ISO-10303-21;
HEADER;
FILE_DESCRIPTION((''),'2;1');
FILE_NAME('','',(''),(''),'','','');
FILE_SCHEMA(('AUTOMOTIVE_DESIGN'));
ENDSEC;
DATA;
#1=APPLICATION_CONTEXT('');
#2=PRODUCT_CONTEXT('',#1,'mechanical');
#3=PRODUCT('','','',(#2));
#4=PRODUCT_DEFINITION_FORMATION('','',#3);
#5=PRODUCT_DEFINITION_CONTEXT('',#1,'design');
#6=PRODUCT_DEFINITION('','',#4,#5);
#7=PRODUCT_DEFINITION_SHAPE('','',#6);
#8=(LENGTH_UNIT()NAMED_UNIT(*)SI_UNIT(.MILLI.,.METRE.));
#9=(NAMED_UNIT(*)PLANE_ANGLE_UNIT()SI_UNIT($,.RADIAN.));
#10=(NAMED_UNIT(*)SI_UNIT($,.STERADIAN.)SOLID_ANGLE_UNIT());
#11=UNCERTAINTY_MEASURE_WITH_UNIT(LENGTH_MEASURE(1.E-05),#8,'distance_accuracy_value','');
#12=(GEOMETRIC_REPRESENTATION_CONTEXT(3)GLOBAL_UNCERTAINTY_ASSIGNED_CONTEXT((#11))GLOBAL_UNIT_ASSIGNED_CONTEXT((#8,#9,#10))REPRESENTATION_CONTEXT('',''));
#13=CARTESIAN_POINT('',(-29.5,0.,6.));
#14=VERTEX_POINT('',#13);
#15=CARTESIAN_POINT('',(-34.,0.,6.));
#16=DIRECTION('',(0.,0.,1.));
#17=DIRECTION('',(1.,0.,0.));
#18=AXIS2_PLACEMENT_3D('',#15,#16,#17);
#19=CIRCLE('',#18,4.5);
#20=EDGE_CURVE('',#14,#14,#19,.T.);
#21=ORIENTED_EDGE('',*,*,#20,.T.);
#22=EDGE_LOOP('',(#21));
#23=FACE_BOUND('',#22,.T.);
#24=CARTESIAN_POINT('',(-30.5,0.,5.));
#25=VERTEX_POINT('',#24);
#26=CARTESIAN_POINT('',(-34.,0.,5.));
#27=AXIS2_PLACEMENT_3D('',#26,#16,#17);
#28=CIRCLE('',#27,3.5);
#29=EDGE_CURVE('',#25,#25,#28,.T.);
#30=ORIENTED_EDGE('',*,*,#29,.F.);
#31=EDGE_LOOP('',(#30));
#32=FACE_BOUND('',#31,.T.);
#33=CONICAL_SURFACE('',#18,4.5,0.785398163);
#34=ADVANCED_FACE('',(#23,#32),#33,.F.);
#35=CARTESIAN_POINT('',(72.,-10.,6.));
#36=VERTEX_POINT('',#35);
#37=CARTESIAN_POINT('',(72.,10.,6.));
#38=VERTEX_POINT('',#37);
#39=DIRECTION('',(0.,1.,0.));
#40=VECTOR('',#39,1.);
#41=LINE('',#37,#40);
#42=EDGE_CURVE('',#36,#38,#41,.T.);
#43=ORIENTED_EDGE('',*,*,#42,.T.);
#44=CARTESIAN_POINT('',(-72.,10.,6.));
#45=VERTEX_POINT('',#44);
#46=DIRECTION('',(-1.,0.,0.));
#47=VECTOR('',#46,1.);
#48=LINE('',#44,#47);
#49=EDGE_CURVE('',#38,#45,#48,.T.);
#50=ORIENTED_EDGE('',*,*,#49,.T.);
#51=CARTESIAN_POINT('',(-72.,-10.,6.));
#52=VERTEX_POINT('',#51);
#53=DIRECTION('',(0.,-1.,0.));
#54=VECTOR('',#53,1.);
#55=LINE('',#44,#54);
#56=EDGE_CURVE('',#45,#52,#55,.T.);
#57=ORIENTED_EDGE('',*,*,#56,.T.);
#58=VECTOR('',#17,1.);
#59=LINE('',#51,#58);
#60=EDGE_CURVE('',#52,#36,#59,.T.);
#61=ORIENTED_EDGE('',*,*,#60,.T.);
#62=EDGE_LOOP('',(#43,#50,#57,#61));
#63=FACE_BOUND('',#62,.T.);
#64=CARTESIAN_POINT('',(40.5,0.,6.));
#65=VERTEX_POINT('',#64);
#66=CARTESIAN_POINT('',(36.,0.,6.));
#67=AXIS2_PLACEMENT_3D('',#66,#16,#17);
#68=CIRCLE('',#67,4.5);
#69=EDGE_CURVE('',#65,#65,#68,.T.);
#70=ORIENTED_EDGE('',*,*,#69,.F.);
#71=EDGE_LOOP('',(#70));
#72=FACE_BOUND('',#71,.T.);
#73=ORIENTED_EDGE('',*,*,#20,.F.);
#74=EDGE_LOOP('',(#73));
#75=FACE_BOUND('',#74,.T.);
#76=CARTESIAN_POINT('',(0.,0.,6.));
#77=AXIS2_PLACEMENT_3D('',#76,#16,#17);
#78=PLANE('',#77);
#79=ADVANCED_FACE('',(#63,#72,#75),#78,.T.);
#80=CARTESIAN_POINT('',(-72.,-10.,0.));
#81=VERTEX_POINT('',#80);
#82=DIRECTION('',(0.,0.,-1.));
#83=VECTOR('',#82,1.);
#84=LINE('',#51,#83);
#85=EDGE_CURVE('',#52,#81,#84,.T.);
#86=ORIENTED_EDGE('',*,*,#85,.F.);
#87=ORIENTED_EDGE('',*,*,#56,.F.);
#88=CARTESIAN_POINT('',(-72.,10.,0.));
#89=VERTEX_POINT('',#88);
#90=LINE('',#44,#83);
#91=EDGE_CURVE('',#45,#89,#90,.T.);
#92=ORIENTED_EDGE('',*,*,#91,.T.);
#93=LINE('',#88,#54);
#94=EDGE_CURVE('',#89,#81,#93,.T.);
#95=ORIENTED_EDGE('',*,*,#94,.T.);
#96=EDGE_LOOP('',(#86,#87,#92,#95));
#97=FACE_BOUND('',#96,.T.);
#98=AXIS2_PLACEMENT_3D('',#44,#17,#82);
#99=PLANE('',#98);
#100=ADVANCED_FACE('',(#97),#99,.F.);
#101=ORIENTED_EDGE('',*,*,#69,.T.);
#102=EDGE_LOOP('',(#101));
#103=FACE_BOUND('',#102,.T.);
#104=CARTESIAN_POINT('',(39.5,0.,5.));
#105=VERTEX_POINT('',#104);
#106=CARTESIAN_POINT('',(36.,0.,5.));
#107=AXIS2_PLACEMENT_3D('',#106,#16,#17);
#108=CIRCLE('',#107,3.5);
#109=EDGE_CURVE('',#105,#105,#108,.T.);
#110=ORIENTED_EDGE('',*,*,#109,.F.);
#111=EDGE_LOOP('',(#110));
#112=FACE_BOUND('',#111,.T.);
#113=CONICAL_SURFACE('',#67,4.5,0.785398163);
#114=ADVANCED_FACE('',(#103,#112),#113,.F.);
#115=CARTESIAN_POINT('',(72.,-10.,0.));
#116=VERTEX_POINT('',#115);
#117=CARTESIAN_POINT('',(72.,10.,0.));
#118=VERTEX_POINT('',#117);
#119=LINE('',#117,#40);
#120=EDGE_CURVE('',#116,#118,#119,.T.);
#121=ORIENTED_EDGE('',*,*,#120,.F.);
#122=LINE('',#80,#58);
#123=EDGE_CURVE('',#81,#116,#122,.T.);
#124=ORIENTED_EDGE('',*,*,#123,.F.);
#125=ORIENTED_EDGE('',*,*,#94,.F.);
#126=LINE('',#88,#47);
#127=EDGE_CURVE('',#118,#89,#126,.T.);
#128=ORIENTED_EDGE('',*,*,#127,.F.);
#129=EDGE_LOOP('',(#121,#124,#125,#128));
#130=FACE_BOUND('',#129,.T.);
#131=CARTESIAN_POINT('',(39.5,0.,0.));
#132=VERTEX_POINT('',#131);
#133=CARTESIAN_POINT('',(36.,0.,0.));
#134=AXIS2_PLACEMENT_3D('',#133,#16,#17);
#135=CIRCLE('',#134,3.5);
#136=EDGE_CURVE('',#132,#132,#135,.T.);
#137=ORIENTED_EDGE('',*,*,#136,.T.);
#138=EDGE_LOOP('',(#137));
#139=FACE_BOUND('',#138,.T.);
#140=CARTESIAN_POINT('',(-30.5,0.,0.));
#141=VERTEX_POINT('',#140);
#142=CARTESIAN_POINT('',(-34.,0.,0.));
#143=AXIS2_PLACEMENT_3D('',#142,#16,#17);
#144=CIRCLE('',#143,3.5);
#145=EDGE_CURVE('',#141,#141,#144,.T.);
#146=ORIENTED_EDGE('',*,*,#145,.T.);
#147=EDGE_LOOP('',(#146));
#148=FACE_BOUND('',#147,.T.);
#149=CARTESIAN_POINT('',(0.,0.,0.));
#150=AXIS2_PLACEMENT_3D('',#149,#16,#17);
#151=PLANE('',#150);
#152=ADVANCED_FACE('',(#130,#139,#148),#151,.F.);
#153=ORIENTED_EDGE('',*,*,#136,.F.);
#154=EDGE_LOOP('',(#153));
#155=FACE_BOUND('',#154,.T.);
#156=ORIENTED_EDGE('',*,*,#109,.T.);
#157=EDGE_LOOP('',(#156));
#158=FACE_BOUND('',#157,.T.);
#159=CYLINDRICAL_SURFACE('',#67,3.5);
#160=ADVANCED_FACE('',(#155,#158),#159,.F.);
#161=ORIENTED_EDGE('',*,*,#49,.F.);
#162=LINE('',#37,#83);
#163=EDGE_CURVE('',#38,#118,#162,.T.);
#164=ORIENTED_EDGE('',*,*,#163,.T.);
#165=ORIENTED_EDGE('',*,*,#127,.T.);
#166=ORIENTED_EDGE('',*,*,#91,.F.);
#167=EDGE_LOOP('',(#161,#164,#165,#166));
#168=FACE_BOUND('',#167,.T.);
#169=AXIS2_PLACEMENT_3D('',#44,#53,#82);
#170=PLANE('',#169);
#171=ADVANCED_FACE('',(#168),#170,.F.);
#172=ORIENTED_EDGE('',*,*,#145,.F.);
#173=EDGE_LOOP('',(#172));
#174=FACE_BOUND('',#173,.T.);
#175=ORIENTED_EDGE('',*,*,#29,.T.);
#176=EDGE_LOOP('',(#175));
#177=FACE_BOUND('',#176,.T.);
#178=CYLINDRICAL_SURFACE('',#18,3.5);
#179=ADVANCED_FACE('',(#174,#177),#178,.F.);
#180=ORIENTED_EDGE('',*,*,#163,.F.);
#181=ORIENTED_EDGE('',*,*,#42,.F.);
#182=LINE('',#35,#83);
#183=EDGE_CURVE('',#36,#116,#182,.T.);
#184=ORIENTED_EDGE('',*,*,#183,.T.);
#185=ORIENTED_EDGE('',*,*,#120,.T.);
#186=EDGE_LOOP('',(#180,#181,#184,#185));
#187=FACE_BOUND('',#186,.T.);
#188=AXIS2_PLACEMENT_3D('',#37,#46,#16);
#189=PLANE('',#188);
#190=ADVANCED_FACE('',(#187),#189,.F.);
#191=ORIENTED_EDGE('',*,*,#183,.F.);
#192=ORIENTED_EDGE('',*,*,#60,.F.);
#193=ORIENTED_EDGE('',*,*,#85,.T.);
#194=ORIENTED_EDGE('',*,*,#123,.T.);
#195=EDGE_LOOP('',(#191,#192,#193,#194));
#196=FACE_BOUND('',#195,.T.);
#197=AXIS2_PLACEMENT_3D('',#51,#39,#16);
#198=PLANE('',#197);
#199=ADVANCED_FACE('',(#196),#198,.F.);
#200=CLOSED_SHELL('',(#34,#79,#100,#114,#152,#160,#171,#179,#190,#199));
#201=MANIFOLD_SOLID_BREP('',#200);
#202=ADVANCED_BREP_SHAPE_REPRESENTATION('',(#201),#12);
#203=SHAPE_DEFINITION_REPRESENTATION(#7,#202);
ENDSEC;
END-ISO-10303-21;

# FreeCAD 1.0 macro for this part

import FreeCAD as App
import Part
import Sketcher
from FreeCAD import Vector
Q = App.Units.Quantity


def add_polygon(sketch, points):
    """Adds a closed chain of lines whose ends are joined by coincident constraints."""
    first, n = sketch.GeometryCount, len(points)
    for a, b in zip(points, points[1:] + points[:1]):
        sketch.addGeometry(Part.LineSegment(App.Vector(*a, 0), App.Vector(*b, 0)), False)
    for i in range(n):
        sketch.addConstraint(Sketcher.Constraint("Coincident", first + i, 2, first + (i + 1) % n, 1))

doc = App.newDocument("Part")
body = doc.addObject("PartDesign::Body", "Body")

# Sketch on XY plane
sketch1 = body.newObject("Sketcher::SketchObject", "Sketch")
sketch1.AttachmentSupport = (doc.getObject("XY_Plane"), [""])
sketch1.MapMode = "FlatFace"
add_polygon(sketch1, [(-72, 10), (-72, -10), (72, -10), (72, 10)])  # lines 0-3
sketch1.addConstraint([
    Sketcher.Constraint("Vertical", 0),
    Sketcher.Constraint("Horizontal", 1),
    Sketcher.Constraint("Vertical", 2),
    Sketcher.Constraint("Horizontal", 3),
    Sketcher.Constraint("Symmetric", 0, 2, 2, 2, -1, 1),
    Sketcher.Constraint("DistanceX", 1, 1, 1, 2, Q("144 mm")),
    Sketcher.Constraint("DistanceY", 0, 2, 0, 1, Q("20 mm")),
])
pad1 = body.newObject("PartDesign::Pad", "Pad")
pad1.Profile = sketch1
pad1.Length = 6

# Sketch on XY plane
sketch2 = body.newObject("Sketcher::SketchObject", "Sketch001")
sketch2.AttachmentSupport = (doc.getObject("XY_Plane"), [""])
sketch2.MapMode = "FlatFace"
sketch2.AttachmentOffset = App.Placement(Vector(0, 0, 6), App.Rotation())
sketch2.addGeometry([
    Part.Circle(Vector(-34, 0, 0), Vector(0, 0, 1), 3.5),
    Part.Circle(Vector(36, 0, 0), Vector(0, 0, 1), 3.5),
], False)
sketch2.addConstraint([
    Sketcher.Constraint("Equal", 0, 1),
    Sketcher.Constraint("PointOnObject", 0, 3, -1),
    Sketcher.Constraint("PointOnObject", 1, 3, -1),
    Sketcher.Constraint("Diameter", 0, Q("7 mm")),
    Sketcher.Constraint("DistanceX", 0, 3, -1, 1, Q("34 mm")),
    Sketcher.Constraint("DistanceX", -1, 1, 1, 3, Q("36 mm")),
])
doc.recompute()
hole = body.newObject("PartDesign::Hole", "Hole")
hole.Profile = sketch2
hole.ThreadType = "None"
hole.Diameter = 7
hole.DepthType = "ThroughAll"
hole.HoleCutType = "Countersink"
hole.HoleCutDiameter = 9
hole.HoleCutCountersinkAngle = 90

doc.recompute()
